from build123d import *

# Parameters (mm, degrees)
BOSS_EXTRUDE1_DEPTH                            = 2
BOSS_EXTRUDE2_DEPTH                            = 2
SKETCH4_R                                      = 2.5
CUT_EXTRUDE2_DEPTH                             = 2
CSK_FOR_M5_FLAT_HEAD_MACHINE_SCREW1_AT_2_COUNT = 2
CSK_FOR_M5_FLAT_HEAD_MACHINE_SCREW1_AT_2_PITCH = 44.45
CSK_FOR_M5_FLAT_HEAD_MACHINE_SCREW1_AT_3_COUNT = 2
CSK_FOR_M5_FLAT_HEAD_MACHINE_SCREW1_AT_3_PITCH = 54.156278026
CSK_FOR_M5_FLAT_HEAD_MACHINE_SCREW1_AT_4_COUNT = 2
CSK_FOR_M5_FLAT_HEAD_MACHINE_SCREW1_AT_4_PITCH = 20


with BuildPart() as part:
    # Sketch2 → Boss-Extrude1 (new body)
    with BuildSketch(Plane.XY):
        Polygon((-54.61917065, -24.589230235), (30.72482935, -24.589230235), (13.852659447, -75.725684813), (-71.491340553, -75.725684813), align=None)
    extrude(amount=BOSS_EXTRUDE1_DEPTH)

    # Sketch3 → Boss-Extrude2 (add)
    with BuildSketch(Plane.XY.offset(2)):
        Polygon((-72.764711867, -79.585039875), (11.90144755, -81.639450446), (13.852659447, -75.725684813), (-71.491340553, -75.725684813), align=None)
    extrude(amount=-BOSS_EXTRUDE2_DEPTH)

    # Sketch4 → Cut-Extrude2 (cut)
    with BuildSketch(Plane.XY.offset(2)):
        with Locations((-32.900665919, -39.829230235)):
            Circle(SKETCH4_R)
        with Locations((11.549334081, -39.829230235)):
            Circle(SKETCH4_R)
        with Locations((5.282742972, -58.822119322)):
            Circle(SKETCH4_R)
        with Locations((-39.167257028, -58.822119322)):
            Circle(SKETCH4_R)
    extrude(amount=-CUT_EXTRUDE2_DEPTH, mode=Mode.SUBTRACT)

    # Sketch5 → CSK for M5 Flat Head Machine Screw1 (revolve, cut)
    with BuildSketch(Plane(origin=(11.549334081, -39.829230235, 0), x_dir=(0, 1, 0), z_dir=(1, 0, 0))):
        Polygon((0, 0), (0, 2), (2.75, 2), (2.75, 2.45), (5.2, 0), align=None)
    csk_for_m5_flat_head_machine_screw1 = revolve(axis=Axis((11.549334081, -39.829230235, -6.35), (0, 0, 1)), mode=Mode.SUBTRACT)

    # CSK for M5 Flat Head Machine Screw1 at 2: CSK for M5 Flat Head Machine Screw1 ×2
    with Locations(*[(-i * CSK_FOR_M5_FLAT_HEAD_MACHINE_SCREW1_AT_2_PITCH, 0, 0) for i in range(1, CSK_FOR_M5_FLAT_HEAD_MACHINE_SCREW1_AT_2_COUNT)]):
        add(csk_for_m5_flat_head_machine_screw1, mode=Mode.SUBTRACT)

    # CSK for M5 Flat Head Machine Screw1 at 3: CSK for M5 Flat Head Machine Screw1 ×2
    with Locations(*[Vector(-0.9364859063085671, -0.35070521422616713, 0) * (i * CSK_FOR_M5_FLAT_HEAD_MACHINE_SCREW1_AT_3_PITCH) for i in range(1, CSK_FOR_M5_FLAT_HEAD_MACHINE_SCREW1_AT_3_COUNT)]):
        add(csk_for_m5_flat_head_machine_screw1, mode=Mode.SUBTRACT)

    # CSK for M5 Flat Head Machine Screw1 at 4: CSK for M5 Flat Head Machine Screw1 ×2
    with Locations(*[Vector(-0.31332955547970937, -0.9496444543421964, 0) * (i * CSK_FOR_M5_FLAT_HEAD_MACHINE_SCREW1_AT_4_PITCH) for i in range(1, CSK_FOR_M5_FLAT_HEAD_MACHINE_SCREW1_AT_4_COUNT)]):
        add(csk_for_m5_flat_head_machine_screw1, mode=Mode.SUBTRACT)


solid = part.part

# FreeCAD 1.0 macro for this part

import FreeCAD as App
import Part
import Sketcher

V = App.Vector
Q = App.Units.Quantity

doc = App.newDocument("Part")
body = doc.addObject("PartDesign::Body", "Body")

# Sketch on XY plane
sketch1 = body.newObject("Sketcher::SketchObject", "Sketch")
sketch1.AttachmentSupport = (doc.getObject("XY_Plane"), [""])
sketch1.MapMode = "FlatFace"
sketch1.addGeometry(Part.LineSegment(V(31, -25, 0), V(-55, -25, 0)), False)
sketch1.addGeometry(Part.LineSegment(V(-55, -25, 0), V(-71, -76, 0)), False)
sketch1.addGeometry(Part.LineSegment(V(-71, -76, 0), V(14, -76, 0)), False)
sketch1.addGeometry(Part.LineSegment(V(14, -76, 0), V(31, -25, 0)), False)
sketch1.addConstraint(Sketcher.Constraint("Coincident", 0, 2, 1, 1))
sketch1.addConstraint(Sketcher.Constraint("Coincident", 1, 2, 2, 1))
sketch1.addConstraint(Sketcher.Constraint("Coincident", 2, 2, 3, 1))
sketch1.addConstraint(Sketcher.Constraint("Coincident", 3, 2, 0, 1))
sketch1.addConstraint(Sketcher.Constraint("Horizontal", 0))
sketch1.addConstraint(Sketcher.Constraint("Horizontal", 2))
sketch1.addConstraint(Sketcher.Constraint("Parallel", 1, 3))
sketch1.addConstraint(Sketcher.Constraint("Angle", 1, Q("-108.26 deg")))
sketch1.addConstraint(Sketcher.Constraint("DistanceX", 0, 2, 0, 1, Q("85.344 mm")))
sketch1.addConstraint(Sketcher.Constraint("Distance", 1, Q("53.848 mm")))
sketch1.addConstraint(Sketcher.Constraint("DistanceX", 0, 2, -1, 1, Q("54.619171 mm")))
sketch1.addConstraint(Sketcher.Constraint("DistanceY", 0, 2, -1, 1, Q("24.58923 mm")))
pad1 = body.newObject("PartDesign::Pad", "Pad")
pad1.Profile = sketch1
pad1.Length = 2

# Sketch on XY plane
sketch2 = body.newObject("Sketcher::SketchObject", "Sketch001")
sketch2.AttachmentSupport = (doc.getObject("XY_Plane"), [""])
sketch2.MapMode = "FlatFace"
sketch2.AttachmentOffset = App.Placement(V(0, 0, 2), App.Rotation())
sketch2.addGeometry(Part.LineSegment(V(-72.8, -79.6, 0), V(11.9, -81.6, 0)), False)
sketch2.addGeometry(Part.LineSegment(V(11.9, -81.6, 0), V(13.9, -75.7, 0)), False)
sketch2.addGeometry(Part.LineSegment(V(13.9, -75.7, 0), V(-71.5, -75.7, 0)), False)
sketch2.addGeometry(Part.LineSegment(V(-71.5, -75.7, 0), V(-72.8, -79.6, 0)), False)
sketch2.addConstraint(Sketcher.Constraint("Coincident", 0, 2, 1, 1))
sketch2.addConstraint(Sketcher.Constraint("Coincident", 1, 2, 2, 1))
sketch2.addConstraint(Sketcher.Constraint("Coincident", 2, 2, 3, 1))
sketch2.addConstraint(Sketcher.Constraint("Coincident", 3, 2, 0, 1))
sketch2.addConstraint(Sketcher.Constraint("Horizontal", 2))
sketch2.addConstraint(Sketcher.Constraint("Parallel", 1, 3))
sketch2.addConstraint(Sketcher.Constraint("Angle", 0, Q("-1.39 deg")))
sketch2.addConstraint(Sketcher.Constraint("Angle", 1, Q("71.74 deg")))
sketch2.addConstraint(Sketcher.Constraint("DistanceX", 2, 2, 2, 1, Q("85.344 mm")))
sketch2.addConstraint(Sketcher.Constraint("Distance", 3, Q("4.064 mm")))
sketch2.addConstraint(Sketcher.Constraint("DistanceY", 0, 2, -1, 1, Q("81.63945 mm")))
sketch2.addConstraint(Sketcher.Constraint("DistanceX", -1, 1, 1, 2, Q("13.852659 mm")))
pad2 = body.newObject("PartDesign::Pad", "Pad001")
pad2.Profile = sketch2
pad2.Length = 2
pad2.Reversed = True

# Sketch on XY plane
sketch3 = body.newObject("Sketcher::SketchObject", "Sketch002")
sketch3.AttachmentSupport = (doc.getObject("XY_Plane"), [""])
sketch3.MapMode = "FlatFace"
sketch3.AttachmentOffset = App.Placement(V(0, 0, 2), App.Rotation())
sketch3.addGeometry(Part.Circle(V(-32.9, -39.8, 0), V(0, 0, 1), 2.5), False)
sketch3.addGeometry(Part.Circle(V(11.5, -39.8, 0), V(0, 0, 1), 2.5), False)
sketch3.addGeometry(Part.Circle(V(5.3, -58.8, 0), V(0, 0, 1), 2.5), False)
sketch3.addGeometry(Part.Circle(V(-39.2, -58.8, 0), V(0, 0, 1), 2.5), False)
sketch3.addConstraint(Sketcher.Constraint("Equal", 0, 1))
sketch3.addConstraint(Sketcher.Constraint("Equal", 1, 2))
sketch3.addConstraint(Sketcher.Constraint("Equal", 2, 3))
sketch3.addConstraint(Sketcher.Constraint("Horizontal", 0, 3, 1, 3))
sketch3.addConstraint(Sketcher.Constraint("Horizontal", 2, 3, 3, 3))
sketch3.addConstraint(Sketcher.Constraint("Diameter", 0, Q("5 mm")))
sketch3.addConstraint(Sketcher.Constraint("DistanceX", 0, 3, 1, 3, Q("44.45 mm")))
sketch3.addConstraint(Sketcher.Constraint("DistanceX", 3, 3, 2, 3, Q("44.45 mm")))
sketch3.addConstraint(Sketcher.Constraint("DistanceY", 0, 3, -1, 1, Q("39.82923 mm")))
sketch3.addConstraint(Sketcher.Constraint("DistanceY", 2, 3, -1, 1, Q("58.822119 mm")))
sketch3.addConstraint(Sketcher.Constraint("DistanceX", 2, 3, 1, 3, Q("6.266591 mm")))
sketch3.addConstraint(Sketcher.Constraint("DistanceX", 0, 3, -1, 1, Q("32.900666 mm")))
pocket1 = body.newObject("PartDesign::Pocket", "Pocket")
pocket1.Profile = sketch3
pocket1.Length = 2

# Sketch on YZ plane
sketch4 = body.newObject("Sketcher::SketchObject", "Sketch003")
sketch4.AttachmentSupport = (doc.getObject("YZ_Plane"), [""])
sketch4.MapMode = "FlatFace"
sketch4.AttachmentOffset = App.Placement(V(0, 0, 11.549334), App.Rotation())
sketch4.addGeometry(Part.LineSegment(V(-39.83, 2, 0), V(-39.83, 0, 0)), False)
sketch4.addGeometry(Part.LineSegment(V(-39.83, 0, 0), V(-34.63, 0, 0)), False)
sketch4.addGeometry(Part.LineSegment(V(-34.63, 0, 0), V(-37.08, 2.45, 0)), False)
sketch4.addGeometry(Part.LineSegment(V(-37.08, 2.45, 0), V(-37.08, 2, 0)), False)
sketch4.addGeometry(Part.LineSegment(V(-37.08, 2, 0), V(-39.83, 2, 0)), False)
sketch4.addGeometry(Part.LineSegment(V(-39.83, 0, 0), V(-39.83, 2.45, 0)), True)  # axis
sketch4.addConstraint(Sketcher.Constraint("Coincident", 0, 2, 1, 1))
sketch4.addConstraint(Sketcher.Constraint("Coincident", 1, 2, 2, 1))
sketch4.addConstraint(Sketcher.Constraint("Coincident", 2, 2, 3, 1))
sketch4.addConstraint(Sketcher.Constraint("Coincident", 3, 2, 4, 1))
sketch4.addConstraint(Sketcher.Constraint("Coincident", 4, 2, 0, 1))
sketch4.addConstraint(Sketcher.Constraint("Vertical", 0))
sketch4.addConstraint(Sketcher.Constraint("Horizontal", 1))
sketch4.addConstraint(Sketcher.Constraint("Vertical", 3))
sketch4.addConstraint(Sketcher.Constraint("Horizontal", 4))
sketch4.addConstraint(Sketcher.Constraint("Vertical", 5))
sketch4.addConstraint(Sketcher.Constraint("Coincident", 5, 1, 0, 2))
sketch4.addConstraint(Sketcher.Constraint("PointOnObject", 0, 2, -1))
sketch4.addConstraint(Sketcher.Constraint("Horizontal", 2, 2, 5, 2))
sketch4.addConstraint(Sketcher.Constraint("DistanceY", 0, 2, 0, 1, Q("2 mm")))
sketch4.addConstraint(Sketcher.Constraint("Angle", 2, Q("135 deg")))
sketch4.addConstraint(Sketcher.Constraint("DistanceX", 1, 1, 1, 2, Q("5.2 mm")))
sketch4.addConstraint(Sketcher.Constraint("DistanceX", 4, 2, 4, 1, Q("2.75 mm")))
sketch4.addConstraint(Sketcher.Constraint("DistanceX", 0, 2, -1, 1, Q("39.82923 mm")))
groove = body.newObject("PartDesign::Groove", "Groove")
groove.Profile = sketch4
groove.ReferenceAxis = (sketch4, ["Axis0"])
groove.Angle = 360
doc.recompute()

linearpattern = body.newObject("PartDesign::LinearPattern", "LinearPattern")
linearpattern.Originals = [groove]
linearpattern.Direction = (doc.getObject("X_Axis"), [""])
linearpattern.Mode = "offset"
linearpattern.Offset = 44.45
linearpattern.Occurrences = 2
linearpattern.Reversed = True
body.Tip = linearpattern
doc.recompute()

datumline = body.newObject("PartDesign::Line", "DatumLine")
datumline.Placement = App.Placement(V(0, 0, 0), App.Rotation(V(0, 0, 1), V(-0.936485906, -0.350705214, 0)))
linearpattern2 = body.newObject("PartDesign::LinearPattern", "LinearPattern001")
linearpattern2.Originals = [groove]
linearpattern2.Direction = (datumline, [""])
linearpattern2.Mode = "offset"
linearpattern2.Offset = 54.156278
linearpattern2.Occurrences = 2
body.Tip = linearpattern2
doc.recompute()

datumline2 = body.newObject("PartDesign::Line", "DatumLine001")
datumline2.Placement = App.Placement(V(0, 0, 0), App.Rotation(V(0, 0, 1), V(-0.313329555, -0.949644454, 0)))
linearpattern3 = body.newObject("PartDesign::LinearPattern", "LinearPattern002")
linearpattern3.Originals = [groove]
linearpattern3.Direction = (datumline2, [""])
linearpattern3.Mode = "offset"
linearpattern3.Offset = 20
linearpattern3.Occurrences = 2
body.Tip = linearpattern3

doc.recompute()
